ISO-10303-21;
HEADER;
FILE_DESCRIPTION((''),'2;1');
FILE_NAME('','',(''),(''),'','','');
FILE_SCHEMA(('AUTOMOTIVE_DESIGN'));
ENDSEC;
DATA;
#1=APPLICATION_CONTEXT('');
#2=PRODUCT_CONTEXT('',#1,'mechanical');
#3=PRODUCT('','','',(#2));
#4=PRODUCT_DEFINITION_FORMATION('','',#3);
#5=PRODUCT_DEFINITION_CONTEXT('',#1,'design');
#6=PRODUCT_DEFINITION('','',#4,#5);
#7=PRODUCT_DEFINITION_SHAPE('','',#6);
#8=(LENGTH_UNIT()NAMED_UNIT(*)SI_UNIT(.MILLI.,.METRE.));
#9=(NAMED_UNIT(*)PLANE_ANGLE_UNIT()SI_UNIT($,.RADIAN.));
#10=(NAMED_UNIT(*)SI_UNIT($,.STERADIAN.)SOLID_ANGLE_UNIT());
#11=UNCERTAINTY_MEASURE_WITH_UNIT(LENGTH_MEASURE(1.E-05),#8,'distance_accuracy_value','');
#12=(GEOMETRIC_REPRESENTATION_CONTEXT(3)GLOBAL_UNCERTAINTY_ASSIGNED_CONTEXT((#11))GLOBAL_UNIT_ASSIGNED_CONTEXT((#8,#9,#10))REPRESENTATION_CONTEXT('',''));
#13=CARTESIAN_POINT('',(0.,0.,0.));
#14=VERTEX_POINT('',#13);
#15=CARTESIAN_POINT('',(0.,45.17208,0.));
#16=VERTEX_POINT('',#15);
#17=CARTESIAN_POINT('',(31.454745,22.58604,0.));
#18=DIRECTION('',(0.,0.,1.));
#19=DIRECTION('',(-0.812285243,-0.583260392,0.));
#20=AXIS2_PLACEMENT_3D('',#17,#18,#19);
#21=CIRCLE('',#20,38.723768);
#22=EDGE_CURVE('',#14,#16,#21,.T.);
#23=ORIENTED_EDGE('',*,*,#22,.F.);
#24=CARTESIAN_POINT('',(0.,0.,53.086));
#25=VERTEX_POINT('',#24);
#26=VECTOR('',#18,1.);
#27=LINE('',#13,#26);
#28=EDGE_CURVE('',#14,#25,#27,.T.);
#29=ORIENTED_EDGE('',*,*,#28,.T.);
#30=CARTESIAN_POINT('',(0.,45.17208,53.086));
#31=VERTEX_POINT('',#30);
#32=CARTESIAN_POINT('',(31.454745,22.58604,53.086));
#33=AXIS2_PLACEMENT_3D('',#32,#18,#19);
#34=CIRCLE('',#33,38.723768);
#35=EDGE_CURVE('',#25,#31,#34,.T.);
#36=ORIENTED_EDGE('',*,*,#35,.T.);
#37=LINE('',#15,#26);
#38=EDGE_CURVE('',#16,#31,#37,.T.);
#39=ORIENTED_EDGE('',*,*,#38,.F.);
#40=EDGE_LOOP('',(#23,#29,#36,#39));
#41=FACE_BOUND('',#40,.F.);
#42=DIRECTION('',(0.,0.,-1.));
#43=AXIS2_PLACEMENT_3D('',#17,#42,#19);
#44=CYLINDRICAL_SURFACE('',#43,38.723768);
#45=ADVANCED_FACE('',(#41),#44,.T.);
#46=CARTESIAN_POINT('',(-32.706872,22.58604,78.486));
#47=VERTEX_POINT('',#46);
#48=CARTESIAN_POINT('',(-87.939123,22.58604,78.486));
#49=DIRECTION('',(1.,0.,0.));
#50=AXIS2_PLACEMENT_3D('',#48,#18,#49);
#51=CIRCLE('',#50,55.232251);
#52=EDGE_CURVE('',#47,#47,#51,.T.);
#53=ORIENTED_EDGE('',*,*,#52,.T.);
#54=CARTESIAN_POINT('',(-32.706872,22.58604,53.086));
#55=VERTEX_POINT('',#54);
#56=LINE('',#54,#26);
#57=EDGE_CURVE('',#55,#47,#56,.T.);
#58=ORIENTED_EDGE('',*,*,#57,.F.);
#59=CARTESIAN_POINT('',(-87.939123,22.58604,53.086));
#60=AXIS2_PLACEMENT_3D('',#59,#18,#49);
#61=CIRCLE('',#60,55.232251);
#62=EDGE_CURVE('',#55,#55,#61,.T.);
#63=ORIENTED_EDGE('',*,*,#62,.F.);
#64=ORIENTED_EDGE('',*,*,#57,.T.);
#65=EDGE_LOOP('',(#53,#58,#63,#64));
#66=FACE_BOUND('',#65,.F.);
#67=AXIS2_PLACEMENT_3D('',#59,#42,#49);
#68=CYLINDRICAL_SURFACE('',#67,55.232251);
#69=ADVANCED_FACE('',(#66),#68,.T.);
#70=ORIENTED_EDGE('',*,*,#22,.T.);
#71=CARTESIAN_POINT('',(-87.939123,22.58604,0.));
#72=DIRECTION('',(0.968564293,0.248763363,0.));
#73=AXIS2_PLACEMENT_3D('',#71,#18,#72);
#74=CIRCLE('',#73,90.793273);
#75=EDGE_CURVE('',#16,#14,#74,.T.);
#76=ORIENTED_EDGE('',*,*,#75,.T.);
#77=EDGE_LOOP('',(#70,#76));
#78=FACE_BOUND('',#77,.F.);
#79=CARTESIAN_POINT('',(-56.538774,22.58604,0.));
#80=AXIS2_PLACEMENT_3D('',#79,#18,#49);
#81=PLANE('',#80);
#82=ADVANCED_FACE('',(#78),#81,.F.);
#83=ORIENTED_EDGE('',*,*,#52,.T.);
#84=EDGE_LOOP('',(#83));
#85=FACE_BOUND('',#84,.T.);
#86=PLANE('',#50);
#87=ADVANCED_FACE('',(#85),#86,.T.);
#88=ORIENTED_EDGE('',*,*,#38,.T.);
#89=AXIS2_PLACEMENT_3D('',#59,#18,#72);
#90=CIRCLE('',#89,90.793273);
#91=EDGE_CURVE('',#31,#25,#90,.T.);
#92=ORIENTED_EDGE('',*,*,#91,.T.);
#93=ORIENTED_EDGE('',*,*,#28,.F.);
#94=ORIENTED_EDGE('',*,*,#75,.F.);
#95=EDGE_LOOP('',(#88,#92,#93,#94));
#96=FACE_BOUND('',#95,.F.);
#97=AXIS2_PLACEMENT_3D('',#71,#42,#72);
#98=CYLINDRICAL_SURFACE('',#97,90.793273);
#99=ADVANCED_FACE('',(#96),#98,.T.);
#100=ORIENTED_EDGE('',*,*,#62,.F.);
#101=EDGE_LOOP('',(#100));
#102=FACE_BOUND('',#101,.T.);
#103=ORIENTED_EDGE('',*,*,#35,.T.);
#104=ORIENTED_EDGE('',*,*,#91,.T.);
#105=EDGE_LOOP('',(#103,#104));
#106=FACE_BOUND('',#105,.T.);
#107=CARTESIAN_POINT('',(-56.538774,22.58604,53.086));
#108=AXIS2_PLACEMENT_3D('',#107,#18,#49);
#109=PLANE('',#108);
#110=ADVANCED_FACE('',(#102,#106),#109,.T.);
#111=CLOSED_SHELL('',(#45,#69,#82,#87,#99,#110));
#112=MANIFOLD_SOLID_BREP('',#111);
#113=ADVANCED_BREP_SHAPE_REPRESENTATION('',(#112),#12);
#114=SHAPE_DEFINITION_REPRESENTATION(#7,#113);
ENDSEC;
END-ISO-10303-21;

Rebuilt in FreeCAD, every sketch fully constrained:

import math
import FreeCAD as App
import Part
import Sketcher

V = App.Vector
Q = App.Units.Quantity

doc = App.newDocument("Part")
body = doc.addObject("PartDesign::Body", "Body")

sketch1 = doc.addObject("Sketcher::SketchObject", "Sketch")
body.addObject(sketch1)
sketch1.AttachmentSupport = (doc.XY_Plane, [""])
sketch1.MapMode = "FlatFace"
sketch1.addGeometry(Part.ArcOfCircle(Part.Circle(V(-88, 23, 0), V(0, 0, 1), 91), math.radians(14), math.radians(346)), False)
sketch1.addGeometry(Part.ArcOfCircle(Part.Circle(V(31, 23, 0), V(0, 0, 1), 39), math.radians(-144), math.radians(144)), False)
sketch1.addConstraint(Sketcher.Constraint("Coincident", 0, 1, 1, 2))
sketch1.addConstraint(Sketcher.Constraint("Coincident", 1, 1, 0, 2))
sketch1.addConstraint(Sketcher.Constraint("Coincident", 1, 1, -1, 1))
sketch1.addConstraint(Sketcher.Constraint("PointOnObject", 0, 1, -2))
sketch1.addConstraint(Sketcher.Constraint("Radius", 0, 90.793273))
sketch1.addConstraint(Sketcher.Constraint("Radius", 1, 38.723768))
sketch1.addConstraint(Sketcher.Constraint("DistanceY", -1, 1, 0, 3, 22.58604))
pad1 = doc.addObject("PartDesign::Pad", "Pad")
body.addObject(pad1)
pad1.Profile = sketch1
pad1.Length = Q("2.09 in")

sketch2 = doc.addObject("Sketcher::SketchObject", "Sketch001")
body.addObject(sketch2)
sketch2.AttachmentSupport = (doc.XY_Plane, [""])
sketch2.MapMode = "FlatFace"
sketch2.AttachmentOffset = App.Placement(V(0, 0, 2.09 * 25.4), App.Rotation())
sketch2.addGeometry(Part.Circle(V(-88, 23, 0), V(0, 0, 1), 55), False)
sketch2.addConstraint(Sketcher.Constraint("Diameter", 0, 110.464502))
sketch2.addConstraint(Sketcher.Constraint("DistanceY", -1, 1, 0, 3, 22.58604))
sketch2.addConstraint(Sketcher.Constraint("DistanceX", 0, 3, -1, 1, 87.939123))
pad2 = doc.addObject("PartDesign::Pad", "Pad001")
body.addObject(pad2)
pad2.Profile = sketch2
pad2.Length = Q("1 in")

doc.recompute()
